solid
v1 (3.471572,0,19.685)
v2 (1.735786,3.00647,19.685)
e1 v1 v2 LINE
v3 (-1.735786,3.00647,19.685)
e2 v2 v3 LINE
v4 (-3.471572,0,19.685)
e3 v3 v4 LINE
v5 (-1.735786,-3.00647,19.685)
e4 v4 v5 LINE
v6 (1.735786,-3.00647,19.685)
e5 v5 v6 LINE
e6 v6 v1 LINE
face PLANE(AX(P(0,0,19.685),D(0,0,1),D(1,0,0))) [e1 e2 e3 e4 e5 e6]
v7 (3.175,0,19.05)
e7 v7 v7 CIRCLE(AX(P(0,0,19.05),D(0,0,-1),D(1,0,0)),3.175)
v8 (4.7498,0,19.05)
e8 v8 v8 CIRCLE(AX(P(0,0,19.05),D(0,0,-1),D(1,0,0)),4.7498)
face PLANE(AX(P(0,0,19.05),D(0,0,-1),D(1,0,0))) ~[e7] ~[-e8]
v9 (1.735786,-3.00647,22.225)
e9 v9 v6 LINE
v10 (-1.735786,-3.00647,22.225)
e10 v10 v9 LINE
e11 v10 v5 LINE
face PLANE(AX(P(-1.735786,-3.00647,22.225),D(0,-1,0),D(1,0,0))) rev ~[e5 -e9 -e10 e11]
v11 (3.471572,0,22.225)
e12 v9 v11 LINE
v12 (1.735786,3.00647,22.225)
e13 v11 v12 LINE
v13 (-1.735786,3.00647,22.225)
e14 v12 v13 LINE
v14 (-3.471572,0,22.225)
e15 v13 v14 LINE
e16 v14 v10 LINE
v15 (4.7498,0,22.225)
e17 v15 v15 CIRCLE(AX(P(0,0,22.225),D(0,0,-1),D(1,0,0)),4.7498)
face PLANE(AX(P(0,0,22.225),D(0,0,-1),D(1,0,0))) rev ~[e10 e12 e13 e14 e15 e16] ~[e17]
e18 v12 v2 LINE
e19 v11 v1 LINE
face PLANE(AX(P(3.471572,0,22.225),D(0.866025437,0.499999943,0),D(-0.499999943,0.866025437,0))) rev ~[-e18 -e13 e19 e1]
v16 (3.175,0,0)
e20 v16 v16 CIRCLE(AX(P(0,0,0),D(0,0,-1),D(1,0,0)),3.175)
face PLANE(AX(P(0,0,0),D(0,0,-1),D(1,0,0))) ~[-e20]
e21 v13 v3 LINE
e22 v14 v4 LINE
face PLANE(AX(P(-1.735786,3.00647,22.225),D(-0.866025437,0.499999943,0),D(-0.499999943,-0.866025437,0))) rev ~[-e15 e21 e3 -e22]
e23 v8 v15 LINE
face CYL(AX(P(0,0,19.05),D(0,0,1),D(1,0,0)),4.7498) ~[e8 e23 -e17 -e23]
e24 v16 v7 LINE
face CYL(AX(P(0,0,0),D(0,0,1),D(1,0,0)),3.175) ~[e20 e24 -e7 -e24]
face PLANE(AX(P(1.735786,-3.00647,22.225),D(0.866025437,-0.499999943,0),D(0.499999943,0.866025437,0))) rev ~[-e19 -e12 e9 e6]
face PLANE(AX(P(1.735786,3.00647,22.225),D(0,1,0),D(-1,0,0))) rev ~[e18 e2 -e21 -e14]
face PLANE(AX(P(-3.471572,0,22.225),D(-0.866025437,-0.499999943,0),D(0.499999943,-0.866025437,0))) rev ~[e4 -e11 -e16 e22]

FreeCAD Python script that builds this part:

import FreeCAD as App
import Part
import Sketcher
Q = App.Units.Quantity


def add_polygon(sketch, points):
    """Adds a closed chain of lines whose ends are joined by coincident constraints."""
    first, n = sketch.GeometryCount, len(points)
    for a, b in zip(points, points[1:] + points[:1]):
        sketch.addGeometry(Part.LineSegment(App.Vector(*a, 0), App.Vector(*b, 0)), False)
    for i in range(n):
        sketch.addConstraint(Sketcher.Constraint("Coincident", first + i, 2, first + (i + 1) % n, 1))

doc = App.newDocument("Part")
body = doc.addObject("PartDesign::Body", "Body")

sketch1 = doc.addObject("Sketcher::SketchObject", "Sketch")
body.addObject(sketch1)
sketch1.AttachmentSupport = (doc.XZ_Plane, [""])
sketch1.MapMode = "FlatFace"
add_polygon(sketch1, [(0, 22.2), (0, 0), (3.2, 0), (3.2, 19.1), (4.7, 19.1), (4.7, 22.2)])
sketch1.addConstraint(Sketcher.Constraint("Vertical", 0))
sketch1.addConstraint(Sketcher.Constraint("Horizontal", 1))
sketch1.addConstraint(Sketcher.Constraint("Vertical", 2))
sketch1.addConstraint(Sketcher.Constraint("Horizontal", 3))
sketch1.addConstraint(Sketcher.Constraint("Vertical", 4))
sketch1.addConstraint(Sketcher.Constraint("Horizontal", 5))
sketch1.addConstraint(Sketcher.Constraint("Coincident", 0, 2, -1, 1))
sketch1.addConstraint(Sketcher.Constraint("Equal", 1, 4))
sketch1.addConstraint(Sketcher.Constraint("DistanceY", 2, 1, 2, 2, Q("0.75 in")))
sketch1.addConstraint(Sketcher.Constraint("DistanceX", 1, 1, 1, 2, Q("0.125 in")))
sketch1.addConstraint(Sketcher.Constraint("DistanceX", 3, 1, 3, 2, Q("0.062 in")))
revolution = doc.addObject("PartDesign::Revolution", "Revolution")
body.addObject(revolution)
revolution.Profile = sketch1
revolution.ReferenceAxis = (sketch1, ["V_Axis"])
revolution.Angle = 360

sketch2 = doc.addObject("Sketcher::SketchObject", "Sketch001")
body.addObject(sketch2)
sketch2.AttachmentSupport = (doc.XY_Plane, [""])
sketch2.MapMode = "FlatFace"
sketch2.AttachmentOffset = App.Placement(App.Vector(0, 0, 0.875 * 25.4), App.Rotation())
add_polygon(sketch2, [(1.7, -3), (3.5, 0), (1.7, 3), (-1.7, 3), (-3.5, 0), (-1.7, -3)])
sketch2.addConstraint(Sketcher.Constraint("Horizontal", 2))
sketch2.addConstraint(Sketcher.Constraint("Horizontal", 5))
sketch2.addConstraint(Sketcher.Constraint("Symmetric", 0, 2, 3, 2, -1, 1))
sketch2.addConstraint(Sketcher.Constraint("Symmetric", 1, 2, 4, 2, -1, 1))
sketch2.addConstraint(Sketcher.Constraint("PointOnObject", 0, 2, -1))
sketch2.addConstraint(Sketcher.Constraint("Parallel", 0, 3))
sketch2.addConstraint(Sketcher.Constraint("Vertical", 2, 2, 4, 2))
sketch2.addConstraint(Sketcher.Constraint("Angle", 0, Q("60.000004 deg")))
sketch2.addConstraint(Sketcher.Constraint("DistanceX", 2, 2, 2, 1, 3.471572))
sketch2.addConstraint(Sketcher.Constraint("DistanceY", -1, 1, 1, 2, 3.00647))
pocket1 = doc.addObject("PartDesign::Pocket", "Pocket")
body.addObject(pocket1)
pocket1.Profile = sketch2
pocket1.Length = Q("0.1 in")

doc.recompute()
